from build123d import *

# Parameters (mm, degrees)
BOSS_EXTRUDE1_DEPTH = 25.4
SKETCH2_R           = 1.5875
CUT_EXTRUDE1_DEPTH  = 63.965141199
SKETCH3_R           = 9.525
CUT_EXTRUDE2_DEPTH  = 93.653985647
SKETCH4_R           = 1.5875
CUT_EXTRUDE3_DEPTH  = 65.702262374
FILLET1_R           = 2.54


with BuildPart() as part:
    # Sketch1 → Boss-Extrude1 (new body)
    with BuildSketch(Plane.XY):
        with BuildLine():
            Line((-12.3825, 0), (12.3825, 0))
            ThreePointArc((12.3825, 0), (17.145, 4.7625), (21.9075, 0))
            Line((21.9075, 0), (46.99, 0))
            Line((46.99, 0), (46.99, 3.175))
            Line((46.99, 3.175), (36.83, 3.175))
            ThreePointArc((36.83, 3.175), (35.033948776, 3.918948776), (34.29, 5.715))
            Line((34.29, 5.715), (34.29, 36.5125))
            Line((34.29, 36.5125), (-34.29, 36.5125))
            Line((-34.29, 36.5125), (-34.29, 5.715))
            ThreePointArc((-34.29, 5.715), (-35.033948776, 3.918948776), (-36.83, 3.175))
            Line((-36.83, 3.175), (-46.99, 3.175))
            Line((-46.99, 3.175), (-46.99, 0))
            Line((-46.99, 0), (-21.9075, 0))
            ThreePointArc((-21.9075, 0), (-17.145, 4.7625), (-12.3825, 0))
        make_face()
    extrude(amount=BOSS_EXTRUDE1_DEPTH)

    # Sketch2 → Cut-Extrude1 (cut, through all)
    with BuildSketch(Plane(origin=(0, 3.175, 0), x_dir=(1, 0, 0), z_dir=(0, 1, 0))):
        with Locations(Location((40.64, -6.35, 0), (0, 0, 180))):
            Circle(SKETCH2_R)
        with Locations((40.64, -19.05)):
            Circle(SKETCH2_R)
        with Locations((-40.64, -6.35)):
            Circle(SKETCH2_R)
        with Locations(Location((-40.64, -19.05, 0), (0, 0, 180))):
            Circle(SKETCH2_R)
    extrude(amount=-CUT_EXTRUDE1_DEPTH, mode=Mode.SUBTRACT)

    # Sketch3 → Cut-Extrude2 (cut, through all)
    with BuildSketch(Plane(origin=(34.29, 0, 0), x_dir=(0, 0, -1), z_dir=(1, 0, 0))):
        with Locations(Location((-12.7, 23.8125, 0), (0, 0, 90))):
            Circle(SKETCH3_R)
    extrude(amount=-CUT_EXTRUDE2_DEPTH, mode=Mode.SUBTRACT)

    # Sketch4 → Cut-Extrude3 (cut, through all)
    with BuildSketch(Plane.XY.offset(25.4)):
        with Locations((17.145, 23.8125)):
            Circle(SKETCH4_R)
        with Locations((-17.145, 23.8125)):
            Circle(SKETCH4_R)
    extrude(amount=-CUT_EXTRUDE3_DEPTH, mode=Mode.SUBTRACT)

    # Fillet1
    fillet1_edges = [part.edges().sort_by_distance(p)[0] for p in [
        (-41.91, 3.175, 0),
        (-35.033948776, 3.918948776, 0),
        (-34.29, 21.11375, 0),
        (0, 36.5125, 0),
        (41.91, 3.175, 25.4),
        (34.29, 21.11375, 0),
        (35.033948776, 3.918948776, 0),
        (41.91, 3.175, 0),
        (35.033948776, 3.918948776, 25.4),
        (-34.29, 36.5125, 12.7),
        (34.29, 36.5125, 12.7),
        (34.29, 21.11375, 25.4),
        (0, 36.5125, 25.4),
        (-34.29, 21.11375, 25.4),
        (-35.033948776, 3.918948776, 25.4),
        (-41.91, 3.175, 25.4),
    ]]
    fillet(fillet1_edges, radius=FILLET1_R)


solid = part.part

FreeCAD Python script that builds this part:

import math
import FreeCAD as App
import Part
import Sketcher

V = App.Vector
Q = App.Units.Quantity


def edges_at(feature, points):
    """Names of the edges that pass closest to the given points."""
    edges = feature.Shape.Edges
    near = lambda p: min(range(len(edges)), key=lambda i: edges[i].distToShape(Part.Vertex(*p))[0])
    return sorted({f"Edge{near(p) + 1}" for p in points})

doc = App.newDocument("Part")
body = doc.addObject("PartDesign::Body", "Body")

# Sketch on XY plane
sketch1 = body.newObject("Sketcher::SketchObject", "Sketch")
sketch1.AttachmentSupport = (doc.getObject("XY_Plane"), [""])
sketch1.MapMode = "FlatFace"
sketch1.addGeometry([
    Part.LineSegment(V(-12.4, 0, 0), V(12.4, 0, 0)),  # 0
    Part.ArcOfCircle(Part.Circle(V(17.1, 0, 0), V(0, 0, 1), 4.8), math.radians(0), math.radians(180)),  # 1
    Part.LineSegment(V(21.9, 0, 0), V(47, 0, 0)),  # 2
    Part.LineSegment(V(47, 0, 0), V(47, 3.2, 0)),  # 3
    Part.LineSegment(V(47, 3.2, 0), V(36.8, 3.2, 0)),  # 4
    Part.ArcOfCircle(Part.Circle(V(36.8, 5.7, 0), V(0, 0, 1), 2.5), math.radians(-180), math.radians(-90)),  # 5
    Part.LineSegment(V(34.3, 5.7, 0), V(34.3, 36.5, 0)),  # 6
    Part.LineSegment(V(34.3, 36.5, 0), V(-34.3, 36.5, 0)),  # 7
    Part.LineSegment(V(-34.3, 36.5, 0), V(-34.3, 5.7, 0)),  # 8
    Part.ArcOfCircle(Part.Circle(V(-36.8, 5.7, 0), V(0, 0, 1), 2.5), math.radians(-90), math.radians(0)),  # 9
    Part.LineSegment(V(-36.8, 3.2, 0), V(-47, 3.2, 0)),  # 10
    Part.LineSegment(V(-47, 3.2, 0), V(-47, 0, 0)),  # 11
    Part.LineSegment(V(-47, 0, 0), V(-21.9, 0, 0)),  # 12
    Part.ArcOfCircle(Part.Circle(V(-17.1, 0, 0), V(0, 0, 1), 4.8), math.radians(0), math.radians(180)),  # 13
], False)
sketch1.addConstraint([
    Sketcher.Constraint("Coincident", 0, 2, 1, 2),
    Sketcher.Constraint("Coincident", 1, 1, 2, 1),
    Sketcher.Constraint("Coincident", 2, 2, 3, 1),
    Sketcher.Constraint("Coincident", 3, 2, 4, 1),
    Sketcher.Constraint("Tangent", 4, 2, 5, 2),
    Sketcher.Constraint("Tangent", 5, 1, 6, 1),
    Sketcher.Constraint("Coincident", 6, 2, 7, 1),
    Sketcher.Constraint("Coincident", 7, 2, 8, 1),
    Sketcher.Constraint("Tangent", 8, 2, 9, 2),
    Sketcher.Constraint("Tangent", 9, 1, 10, 1),
    Sketcher.Constraint("Coincident", 10, 2, 11, 1),
    Sketcher.Constraint("Coincident", 11, 2, 12, 1),
    Sketcher.Constraint("Coincident", 12, 2, 13, 2),
    Sketcher.Constraint("Coincident", 13, 1, 0, 1),
    Sketcher.Constraint("Horizontal", 0),
    Sketcher.Constraint("Horizontal", 2),
    Sketcher.Constraint("Vertical", 3),
    Sketcher.Constraint("Horizontal", 4),
    Sketcher.Constraint("Vertical", 6),
    Sketcher.Constraint("Horizontal", 7),
    Sketcher.Constraint("Vertical", 8),
    Sketcher.Constraint("Horizontal", 10),
    Sketcher.Constraint("Vertical", 11),
    Sketcher.Constraint("Horizontal", 12),
    Sketcher.Constraint("Equal", 5, 9),
    Sketcher.Constraint("Equal", 1, 13),
    Sketcher.Constraint("Symmetric", 1, 3, 13, 3, -1, 1),
    Sketcher.Constraint("Symmetric", 2, 2, 11, 2, -1, 1),
    Sketcher.Constraint("Symmetric", 5, 3, 9, 3, -2),
    Sketcher.Constraint("PointOnObject", 1, 3, -1),
    Sketcher.Constraint("PointOnObject", 0, 2, -1),
    Sketcher.Constraint("PointOnObject", 1, 1, -1),
    Sketcher.Constraint("Radius", 5, Q("0.1 in")),
    Sketcher.Constraint("DistanceX", 4, 2, 4, 1, Q("0.4 in")),
    Sketcher.Constraint("DistanceX", 7, 2, 7, 1, Q("2.7 in")),
    Sketcher.Constraint("Radius", 1, Q("0.1875 in")),
    Sketcher.Constraint("DistanceX", 0, 1, 0, 2, Q("0.975 in")),
    Sketcher.Constraint("DistanceY", 3, 1, 3, 2, Q("0.125 in")),
    Sketcher.Constraint("DistanceY", 6, 1, 6, 2, Q("1.2125 in")),
])
pad1 = body.newObject("PartDesign::Pad", "Pad")
pad1.Profile = sketch1
pad1.Length = Q("1 in")

# Sketch on XZ plane
sketch2 = body.newObject("Sketcher::SketchObject", "Sketch001")
sketch2.AttachmentSupport = (doc.getObject("XZ_Plane"), [""])
sketch2.MapMode = "FlatFace"
sketch2.AttachmentOffset = App.Placement(V(0, 0, -0.125 * 25.4), App.Rotation())
sketch2.addGeometry([
    Part.Circle(V(40.6, 6.3, 0), V(0, 0, 1), 1.6),
    Part.Circle(V(40.6, 19.1, 0), V(0, 0, 1), 1.6),
    Part.Circle(V(-40.6, 6.3, 0), V(0, 0, 1), 1.6),
    Part.Circle(V(-40.6, 19.1, 0), V(0, 0, 1), 1.6),
], False)
sketch2.addConstraint([
    Sketcher.Constraint("Equal", 0, 1),
    Sketcher.Constraint("Equal", 1, 2),
    Sketcher.Constraint("Equal", 2, 3),
    Sketcher.Constraint("Symmetric", 0, 3, 2, 3, -2),
    Sketcher.Constraint("Symmetric", 1, 3, 3, 3, -2),
    Sketcher.Constraint("Vertical", 0, 3, 1, 3),
    Sketcher.Constraint("Diameter", 0, Q("0.125 in")),
    Sketcher.Constraint("DistanceX", -1, 1, 0, 3, Q("1.6 in")),
    Sketcher.Constraint("DistanceY", 0, 3, 1, 3, Q("0.5 in")),
    Sketcher.Constraint("DistanceY", -1, 1, 0, 3, Q("0.25 in")),
])
pocket1 = body.newObject("PartDesign::Pocket", "Pocket")
pocket1.Profile = sketch2
pocket1.Type = "ThroughAll"
pocket1.Reversed = True

# Sketch on YZ plane
sketch3 = body.newObject("Sketcher::SketchObject", "Sketch002")
sketch3.AttachmentSupport = (doc.getObject("YZ_Plane"), [""])
sketch3.MapMode = "FlatFace"
sketch3.AttachmentOffset = App.Placement(V(0, 0, 1.35 * 25.4), App.Rotation())
sketch3.addGeometry(Part.Circle(V(24, 13, 0), V(0, 0, 1), 10), False)
sketch3.addConstraint([
    Sketcher.Constraint("Diameter", 0, Q("0.75 in")),
    Sketcher.Constraint("DistanceY", -1, 1, 0, 3, Q("0.5 in")),
    Sketcher.Constraint("DistanceX", -1, 1, 0, 3, Q("0.9375 in")),
])
pocket2 = body.newObject("PartDesign::Pocket", "Pocket001")
pocket2.Profile = sketch3
pocket2.Type = "ThroughAll"

# Sketch on XY plane
sketch4 = body.newObject("Sketcher::SketchObject", "Sketch003")
sketch4.AttachmentSupport = (doc.getObject("XY_Plane"), [""])
sketch4.MapMode = "FlatFace"
sketch4.AttachmentOffset = App.Placement(V(0, 0, 1 * 25.4), App.Rotation())
sketch4.addGeometry([
    Part.Circle(V(17.1, 23.8, 0), V(0, 0, 1), 1.6),
    Part.Circle(V(-17.1, 23.8, 0), V(0, 0, 1), 1.6),
], False)
sketch4.addConstraint([
    Sketcher.Constraint("Equal", 0, 1),
    Sketcher.Constraint("Symmetric", 0, 3, 1, 3, -2),
    Sketcher.Constraint("Diameter", 0, Q("0.125 in")),
    Sketcher.Constraint("DistanceX", 1, 3, 0, 3, Q("1.35 in")),
    Sketcher.Constraint("DistanceY", -1, 1, 0, 3, Q("0.9375 in")),
])
pocket3 = body.newObject("PartDesign::Pocket", "Pocket002")
pocket3.Profile = sketch4
pocket3.Type = "ThroughAll"
doc.recompute()

fillet = body.newObject("PartDesign::Fillet", "Fillet")
fillet.Base = (pocket3, edges_at(pocket3, [
    (-41.91, 3.175, 0),
    (-35.034, 3.919, 0),
    (-34.29, 21.114, 0),
    (0, 36.513, 0),
    (41.91, 3.175, 25.4),
    (34.29, 21.114, 0),
    (35.034, 3.919, 0),
    (41.91, 3.175, 0),
    (35.034, 3.919, 25.4),
    (-34.29, 36.513, 12.7),
    (34.29, 36.513, 12.7),
    (34.29, 21.114, 25.4),
    (0, 36.513, 25.4),
    (-34.29, 21.114, 25.4),
    (-35.034, 3.919, 25.4),
    (-41.91, 3.175, 25.4),
]))
fillet.Radius = Q("0.1 in")

doc.recompute()
